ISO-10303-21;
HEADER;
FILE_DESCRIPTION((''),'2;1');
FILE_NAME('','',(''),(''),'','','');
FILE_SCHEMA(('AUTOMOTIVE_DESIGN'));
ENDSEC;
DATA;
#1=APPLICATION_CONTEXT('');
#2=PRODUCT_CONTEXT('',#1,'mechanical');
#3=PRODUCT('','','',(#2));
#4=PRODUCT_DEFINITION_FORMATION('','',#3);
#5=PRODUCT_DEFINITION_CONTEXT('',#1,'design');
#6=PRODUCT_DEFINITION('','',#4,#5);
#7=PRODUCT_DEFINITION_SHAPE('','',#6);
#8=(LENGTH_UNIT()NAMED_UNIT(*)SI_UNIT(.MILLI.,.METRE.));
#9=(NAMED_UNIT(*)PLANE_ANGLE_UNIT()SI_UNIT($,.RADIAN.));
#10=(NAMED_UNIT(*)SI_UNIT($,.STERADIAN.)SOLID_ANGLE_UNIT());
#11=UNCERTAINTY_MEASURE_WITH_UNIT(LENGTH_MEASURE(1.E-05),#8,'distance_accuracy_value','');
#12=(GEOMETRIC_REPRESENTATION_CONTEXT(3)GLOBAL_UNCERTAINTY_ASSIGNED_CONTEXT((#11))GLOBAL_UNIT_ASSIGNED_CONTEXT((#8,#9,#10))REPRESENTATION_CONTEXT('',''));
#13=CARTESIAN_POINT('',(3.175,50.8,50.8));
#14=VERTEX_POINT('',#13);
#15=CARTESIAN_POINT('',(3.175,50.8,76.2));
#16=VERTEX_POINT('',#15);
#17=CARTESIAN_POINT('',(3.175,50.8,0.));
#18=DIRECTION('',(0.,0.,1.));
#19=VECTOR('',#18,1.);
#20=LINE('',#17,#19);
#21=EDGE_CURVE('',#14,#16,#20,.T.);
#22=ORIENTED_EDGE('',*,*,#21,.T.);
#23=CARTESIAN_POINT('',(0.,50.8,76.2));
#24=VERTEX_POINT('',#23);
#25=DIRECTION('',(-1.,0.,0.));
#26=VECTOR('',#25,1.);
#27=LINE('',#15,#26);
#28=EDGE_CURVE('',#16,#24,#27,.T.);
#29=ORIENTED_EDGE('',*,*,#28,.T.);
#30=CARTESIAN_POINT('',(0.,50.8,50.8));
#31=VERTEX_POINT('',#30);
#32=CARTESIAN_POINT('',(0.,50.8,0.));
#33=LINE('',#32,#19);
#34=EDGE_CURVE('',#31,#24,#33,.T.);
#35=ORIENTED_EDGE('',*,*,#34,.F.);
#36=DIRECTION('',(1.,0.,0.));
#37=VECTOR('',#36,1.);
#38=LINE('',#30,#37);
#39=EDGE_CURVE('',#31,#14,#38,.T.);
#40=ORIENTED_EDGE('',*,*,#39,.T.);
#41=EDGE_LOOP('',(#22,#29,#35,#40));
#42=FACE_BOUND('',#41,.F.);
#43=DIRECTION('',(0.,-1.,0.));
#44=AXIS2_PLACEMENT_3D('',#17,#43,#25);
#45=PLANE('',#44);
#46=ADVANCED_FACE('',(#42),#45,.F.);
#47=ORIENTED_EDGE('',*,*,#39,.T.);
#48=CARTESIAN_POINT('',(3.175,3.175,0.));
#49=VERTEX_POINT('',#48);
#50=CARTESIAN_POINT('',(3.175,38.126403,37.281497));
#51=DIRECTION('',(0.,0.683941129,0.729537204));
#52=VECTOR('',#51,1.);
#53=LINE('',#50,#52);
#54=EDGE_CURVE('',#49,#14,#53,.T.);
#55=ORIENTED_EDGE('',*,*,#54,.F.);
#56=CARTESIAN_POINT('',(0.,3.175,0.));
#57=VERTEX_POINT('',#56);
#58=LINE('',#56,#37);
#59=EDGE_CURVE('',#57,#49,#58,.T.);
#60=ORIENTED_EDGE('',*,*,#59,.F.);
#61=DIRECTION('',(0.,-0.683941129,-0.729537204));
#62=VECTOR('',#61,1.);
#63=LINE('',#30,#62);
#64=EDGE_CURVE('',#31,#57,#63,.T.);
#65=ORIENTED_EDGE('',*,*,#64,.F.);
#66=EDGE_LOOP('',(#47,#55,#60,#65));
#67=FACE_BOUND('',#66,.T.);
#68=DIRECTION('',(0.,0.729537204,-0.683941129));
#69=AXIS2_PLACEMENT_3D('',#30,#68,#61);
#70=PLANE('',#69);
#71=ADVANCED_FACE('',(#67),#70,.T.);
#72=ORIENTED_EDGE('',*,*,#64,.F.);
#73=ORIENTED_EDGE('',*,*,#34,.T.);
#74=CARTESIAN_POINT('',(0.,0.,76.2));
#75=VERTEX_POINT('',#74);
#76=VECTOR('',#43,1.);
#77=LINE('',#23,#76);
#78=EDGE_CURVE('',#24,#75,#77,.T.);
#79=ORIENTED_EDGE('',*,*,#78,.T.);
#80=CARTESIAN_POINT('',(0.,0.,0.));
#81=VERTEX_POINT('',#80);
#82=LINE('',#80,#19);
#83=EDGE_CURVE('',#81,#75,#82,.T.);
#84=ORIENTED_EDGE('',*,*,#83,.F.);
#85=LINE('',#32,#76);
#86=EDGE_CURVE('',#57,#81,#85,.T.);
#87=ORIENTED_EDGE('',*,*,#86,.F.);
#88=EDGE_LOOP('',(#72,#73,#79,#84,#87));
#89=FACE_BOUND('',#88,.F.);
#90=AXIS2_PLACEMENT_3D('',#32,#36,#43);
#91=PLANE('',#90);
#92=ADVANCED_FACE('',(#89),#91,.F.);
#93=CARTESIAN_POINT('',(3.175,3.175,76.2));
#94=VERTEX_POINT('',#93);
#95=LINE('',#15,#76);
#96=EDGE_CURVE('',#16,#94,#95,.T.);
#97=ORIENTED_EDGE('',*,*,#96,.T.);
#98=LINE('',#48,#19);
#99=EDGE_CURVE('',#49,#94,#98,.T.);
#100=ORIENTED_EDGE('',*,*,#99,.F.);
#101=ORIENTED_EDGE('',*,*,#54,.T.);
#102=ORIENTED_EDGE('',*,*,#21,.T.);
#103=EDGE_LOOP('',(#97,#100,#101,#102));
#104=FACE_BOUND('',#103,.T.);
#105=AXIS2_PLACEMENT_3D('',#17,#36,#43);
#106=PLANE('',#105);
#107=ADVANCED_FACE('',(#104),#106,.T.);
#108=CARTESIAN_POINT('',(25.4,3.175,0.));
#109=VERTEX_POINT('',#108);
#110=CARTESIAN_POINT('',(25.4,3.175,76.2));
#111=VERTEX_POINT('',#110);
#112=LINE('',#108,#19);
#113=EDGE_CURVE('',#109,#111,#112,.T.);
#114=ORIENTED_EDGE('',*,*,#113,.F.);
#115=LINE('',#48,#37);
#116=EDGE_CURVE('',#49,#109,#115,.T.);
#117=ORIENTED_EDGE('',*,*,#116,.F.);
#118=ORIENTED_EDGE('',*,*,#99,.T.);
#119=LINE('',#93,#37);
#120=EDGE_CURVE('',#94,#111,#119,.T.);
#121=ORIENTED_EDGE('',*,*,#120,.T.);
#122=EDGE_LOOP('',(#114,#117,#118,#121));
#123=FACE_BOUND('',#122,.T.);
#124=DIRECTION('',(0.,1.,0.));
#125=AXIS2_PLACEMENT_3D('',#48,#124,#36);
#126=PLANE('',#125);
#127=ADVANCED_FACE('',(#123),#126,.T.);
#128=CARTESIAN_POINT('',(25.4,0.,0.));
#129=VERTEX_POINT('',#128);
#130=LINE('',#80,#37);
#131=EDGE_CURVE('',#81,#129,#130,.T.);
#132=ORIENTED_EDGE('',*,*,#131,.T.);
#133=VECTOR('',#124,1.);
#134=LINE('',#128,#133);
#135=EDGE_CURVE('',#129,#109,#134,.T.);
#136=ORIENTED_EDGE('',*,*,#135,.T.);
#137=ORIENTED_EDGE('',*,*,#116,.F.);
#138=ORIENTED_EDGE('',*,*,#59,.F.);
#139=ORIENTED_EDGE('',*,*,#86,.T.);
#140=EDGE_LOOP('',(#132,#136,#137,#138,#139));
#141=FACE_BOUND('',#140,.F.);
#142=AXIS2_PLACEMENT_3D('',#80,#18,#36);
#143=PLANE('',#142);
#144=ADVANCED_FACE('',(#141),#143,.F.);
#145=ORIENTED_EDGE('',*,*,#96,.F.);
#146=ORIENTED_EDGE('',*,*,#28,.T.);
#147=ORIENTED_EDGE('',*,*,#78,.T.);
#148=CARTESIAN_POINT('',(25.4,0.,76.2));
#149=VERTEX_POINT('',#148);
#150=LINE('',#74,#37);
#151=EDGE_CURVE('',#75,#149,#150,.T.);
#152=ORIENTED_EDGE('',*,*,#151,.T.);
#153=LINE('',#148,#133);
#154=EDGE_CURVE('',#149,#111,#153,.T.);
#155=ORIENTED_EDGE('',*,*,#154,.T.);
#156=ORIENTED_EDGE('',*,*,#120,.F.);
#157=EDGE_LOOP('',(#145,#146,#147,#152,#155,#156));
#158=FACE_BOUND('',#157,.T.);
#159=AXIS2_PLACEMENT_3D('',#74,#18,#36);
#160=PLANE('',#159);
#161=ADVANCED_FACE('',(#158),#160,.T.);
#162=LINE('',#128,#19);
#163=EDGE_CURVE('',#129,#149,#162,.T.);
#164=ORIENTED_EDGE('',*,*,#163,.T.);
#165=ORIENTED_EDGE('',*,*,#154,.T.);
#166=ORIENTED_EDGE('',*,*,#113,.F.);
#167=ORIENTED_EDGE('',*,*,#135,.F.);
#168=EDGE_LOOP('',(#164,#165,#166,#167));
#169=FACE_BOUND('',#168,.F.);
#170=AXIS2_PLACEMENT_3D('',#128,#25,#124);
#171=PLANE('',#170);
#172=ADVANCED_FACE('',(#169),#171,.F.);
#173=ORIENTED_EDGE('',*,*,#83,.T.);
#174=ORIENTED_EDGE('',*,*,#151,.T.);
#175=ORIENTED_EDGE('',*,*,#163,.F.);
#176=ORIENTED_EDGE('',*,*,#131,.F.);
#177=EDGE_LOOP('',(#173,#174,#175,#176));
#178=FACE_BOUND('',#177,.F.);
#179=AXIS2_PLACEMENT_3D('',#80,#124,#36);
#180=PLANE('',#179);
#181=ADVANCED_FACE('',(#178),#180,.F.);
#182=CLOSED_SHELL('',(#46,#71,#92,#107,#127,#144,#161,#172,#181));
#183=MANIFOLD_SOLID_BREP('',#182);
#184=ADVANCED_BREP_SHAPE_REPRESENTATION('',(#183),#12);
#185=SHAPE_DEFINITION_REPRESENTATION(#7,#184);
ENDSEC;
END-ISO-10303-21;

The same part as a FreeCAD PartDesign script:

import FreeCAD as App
import Part
import Sketcher
from FreeCAD import Vector
Q = App.Units.Quantity


def add_polygon(sketch, points):
    """Adds a closed chain of lines whose ends are joined by coincident constraints."""
    first, n = sketch.GeometryCount, len(points)
    for a, b in zip(points, points[1:] + points[:1]):
        sketch.addGeometry(Part.LineSegment(App.Vector(*a, 0), App.Vector(*b, 0)), False)
    for i in range(n):
        sketch.addConstraint(Sketcher.Constraint("Coincident", first + i, 2, first + (i + 1) % n, 1))

doc = App.newDocument("Part")
body = doc.addObject("PartDesign::Body", "Body")

# Sketch on XY plane
sketch1 = body.newObject("Sketcher::SketchObject", "Sketch")
sketch1.AttachmentSupport = (doc.getObject("XY_Plane"), [""])
sketch1.MapMode = "FlatFace"
add_polygon(sketch1, [(0, 50.8), (0, 0), (25.4, 0), (25.4, 3.2), (3.2, 3.2), (3.2, 50.8)])  # lines 0-5
sketch1.addConstraint([
    Sketcher.Constraint("Vertical", 0),
    Sketcher.Constraint("Horizontal", 1),
    Sketcher.Constraint("Vertical", 2),
    Sketcher.Constraint("Horizontal", 3),
    Sketcher.Constraint("Vertical", 4),
    Sketcher.Constraint("Horizontal", 5),
    Sketcher.Constraint("Coincident", 0, 2, -1, 1),
    Sketcher.Constraint("Equal", 5, 2),
    Sketcher.Constraint("DistanceX", 1, 1, 1, 2, Q("1 in")),
    Sketcher.Constraint("DistanceY", 0, 2, 0, 1, Q("2 in")),
    Sketcher.Constraint("DistanceX", 5, 2, 5, 1, Q("0.125 in")),
])
pad1 = body.newObject("PartDesign::Pad", "Pad")
pad1.Profile = sketch1
pad1.Length = Q("3 in")

# Sketch on YZ plane
sketch2 = body.newObject("Sketcher::SketchObject", "Sketch001")
sketch2.AttachmentSupport = (doc.getObject("YZ_Plane"), [""])
sketch2.MapMode = "FlatFace"
add_polygon(sketch2, [(3, 0), (51, 51), (51, 0)])  # lines 0-2
sketch2.addConstraint([
    Sketcher.Constraint("Vertical", 1),
    Sketcher.Constraint("Horizontal", 2),
    Sketcher.Constraint("PointOnObject", 1, 2, -1),
    Sketcher.Constraint("DistanceY", 1, 2, 1, 1, Q("2 in")),
    Sketcher.Constraint("DistanceX", -1, 1, 2, 2, Q("0.125 in")),
    Sketcher.Constraint("DistanceX", -1, 1, 0, 2, Q("2 in")),
])
pocket1 = body.newObject("PartDesign::Pocket", "Pocket")
pocket1.Profile = sketch2
pocket1.Length = Q("1 in")
pocket1.Reversed = True

doc.recompute()
